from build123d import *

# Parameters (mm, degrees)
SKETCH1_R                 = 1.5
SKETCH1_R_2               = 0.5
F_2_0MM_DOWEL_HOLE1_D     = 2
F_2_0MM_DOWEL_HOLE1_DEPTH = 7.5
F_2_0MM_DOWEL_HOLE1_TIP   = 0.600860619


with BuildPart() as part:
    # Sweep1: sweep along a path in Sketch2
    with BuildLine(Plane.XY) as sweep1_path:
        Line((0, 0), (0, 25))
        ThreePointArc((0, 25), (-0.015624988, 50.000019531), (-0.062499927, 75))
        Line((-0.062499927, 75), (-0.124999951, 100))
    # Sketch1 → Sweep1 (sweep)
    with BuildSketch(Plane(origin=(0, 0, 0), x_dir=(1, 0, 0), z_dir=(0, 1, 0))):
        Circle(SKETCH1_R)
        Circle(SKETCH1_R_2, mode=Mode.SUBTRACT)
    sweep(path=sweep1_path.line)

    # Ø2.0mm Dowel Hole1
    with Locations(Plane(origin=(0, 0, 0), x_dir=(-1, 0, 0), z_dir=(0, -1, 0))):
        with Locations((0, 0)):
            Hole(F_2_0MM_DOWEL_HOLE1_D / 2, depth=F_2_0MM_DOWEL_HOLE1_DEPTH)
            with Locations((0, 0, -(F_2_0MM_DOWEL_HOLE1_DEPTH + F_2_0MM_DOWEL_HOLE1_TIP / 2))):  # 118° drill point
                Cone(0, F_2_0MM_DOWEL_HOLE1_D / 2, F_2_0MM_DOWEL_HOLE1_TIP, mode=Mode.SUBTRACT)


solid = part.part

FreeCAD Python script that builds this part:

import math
import FreeCAD as App
import Part
import Sketcher
from FreeCAD import Vector
Q = App.Units.Quantity

doc = App.newDocument("Part")
params = doc.addObject("Spreadsheet::Sheet", "Params")
for row, (alias, value) in enumerate([
    ("sketch1_diameter", "3 mm"),
    ("sketch1_diameter2", "1 mm"),
    ("sketch2_height", "25 mm"),
    ("sketch3_diameter", "2 mm"),
    ("hole_diameter", "2 mm"),
    ("hole_depth", "7.5 mm"),
], start=1):
    params.set(f"A{row}", alias)
    params.set(f"B{row}", "=" + value)
    params.setAlias(f"B{row}", alias)

body = doc.addObject("PartDesign::Body", "Body")

# Sketch on XZ plane
sketch1 = body.newObject("Sketcher::SketchObject", "Sketch")
sketch1.AttachmentSupport = (doc.getObject("XZ_Plane"), [""])
sketch1.MapMode = "FlatFace"
sketch1.addGeometry([
    Part.Circle(Vector(0, 0, 0), Vector(0, 0, 1), 1.5),
    Part.Circle(Vector(0, 0, 0), Vector(0, 0, 1), 0.5),
], False)
sketch1.addConstraint([
    Sketcher.Constraint("Coincident", 0, 3, -1, 1),
    Sketcher.Constraint("Coincident", 1, 3, -1, 1),
    Sketcher.Constraint("Diameter", 0, Q("3 mm")),
    Sketcher.Constraint("Diameter", 1, Q("1 mm")),
])
sketch1.setExpression("Constraints[2]", "Params.sketch1_diameter")
sketch1.setExpression("Constraints[3]", "Params.sketch1_diameter2")

# Sketch on XY plane
sketch2 = body.newObject("Sketcher::SketchObject", "Sketch001")
sketch2.AttachmentSupport = (doc.getObject("XY_Plane"), [""])
sketch2.MapMode = "FlatFace"
sketch2.addGeometry([
    Part.LineSegment(Vector(0, 0, 0), Vector(0, 25, 0)),
    Part.ArcOfCircle(Part.Circle(Vector(-20000, 25, 0), Vector(0, 0, 1), 20000), math.radians(0), math.radians(0.14)),
    Part.LineSegment(Vector(0, 75, 0), Vector(0, 100, 0)),
], False)
sketch2.addConstraint([
    Sketcher.Constraint("Tangent", 0, 2, 1, 1),
    Sketcher.Constraint("Tangent", 1, 2, 2, 1),
    Sketcher.Constraint("Coincident", 0, 1, -1, 1),
    Sketcher.Constraint("Horizontal", 1, 3, 0, 2),
    Sketcher.Constraint("DistanceY", 0, 1, 0, 2, Q("25 mm")),
    Sketcher.Constraint("DistanceY", -1, 1, 2, 2, Q("100 mm")),
    Sketcher.Constraint("Radius", 1, Q("20000.054799 mm")),
    Sketcher.Constraint("Distance", 2, Q("25.000078 mm")),
])
sketch2.setExpression("Constraints[4]", "Params.sketch2_height")
doc.recompute()

additivepipe = body.newObject("PartDesign::AdditivePipe", "AdditivePipe")
additivepipe.Profile = sketch1
additivepipe.Spine = (sketch2, ["Edge1", "Edge2", "Edge3"])

# Sketch on XZ plane
sketch3 = body.newObject("Sketcher::SketchObject", "Sketch002")
sketch3.AttachmentSupport = (doc.getObject("XZ_Plane"), [""])
sketch3.MapMode = "FlatFace"
sketch3.addGeometry(Part.Circle(Vector(0, 0, 0), Vector(0, 0, 1), 1), False)
sketch3.addConstraint([
    Sketcher.Constraint("Coincident", 0, 3, -1, 1),
    Sketcher.Constraint("Diameter", 0, Q("2 mm")),
])
sketch3.setExpression("Constraints[1]", "Params.sketch3_diameter")
doc.recompute()
hole = body.newObject("PartDesign::Hole", "Hole")
hole.Profile = sketch3
hole.ThreadType = "None"
hole.setExpression("Diameter", "Params.hole_diameter")
hole.DepthType = "Dimension"
hole.setExpression("Depth", "Params.hole_depth")
hole.DrillPoint = "Angled"
hole.DrillPointAngle = 118

doc.recompute()
